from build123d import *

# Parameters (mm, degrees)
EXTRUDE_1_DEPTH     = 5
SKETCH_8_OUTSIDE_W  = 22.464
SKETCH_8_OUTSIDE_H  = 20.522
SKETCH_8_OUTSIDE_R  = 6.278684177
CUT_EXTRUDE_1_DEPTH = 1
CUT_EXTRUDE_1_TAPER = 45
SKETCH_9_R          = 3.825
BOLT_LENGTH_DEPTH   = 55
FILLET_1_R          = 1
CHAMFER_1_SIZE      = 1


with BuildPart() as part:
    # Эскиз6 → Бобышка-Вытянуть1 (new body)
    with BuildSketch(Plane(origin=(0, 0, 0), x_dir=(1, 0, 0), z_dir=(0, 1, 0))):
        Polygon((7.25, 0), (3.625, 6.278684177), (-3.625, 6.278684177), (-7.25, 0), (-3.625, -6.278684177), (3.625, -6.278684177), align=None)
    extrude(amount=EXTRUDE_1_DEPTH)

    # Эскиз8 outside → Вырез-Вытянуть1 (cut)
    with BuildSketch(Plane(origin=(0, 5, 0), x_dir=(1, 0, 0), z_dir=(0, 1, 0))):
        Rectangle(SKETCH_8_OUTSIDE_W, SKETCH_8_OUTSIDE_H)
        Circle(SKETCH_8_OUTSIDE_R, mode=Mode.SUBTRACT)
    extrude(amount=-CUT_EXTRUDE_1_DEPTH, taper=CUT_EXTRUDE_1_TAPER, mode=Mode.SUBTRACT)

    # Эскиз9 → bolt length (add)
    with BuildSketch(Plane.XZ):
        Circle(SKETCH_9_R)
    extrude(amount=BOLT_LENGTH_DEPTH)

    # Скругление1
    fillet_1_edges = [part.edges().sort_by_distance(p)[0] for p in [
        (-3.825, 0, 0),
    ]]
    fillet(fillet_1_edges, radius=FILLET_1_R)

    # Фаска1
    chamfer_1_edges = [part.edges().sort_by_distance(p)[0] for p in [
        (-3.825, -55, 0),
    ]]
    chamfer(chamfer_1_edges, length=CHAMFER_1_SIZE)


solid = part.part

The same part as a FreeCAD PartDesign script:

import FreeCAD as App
import Part
import Sketcher
from FreeCAD import Vector
Q = App.Units.Quantity


def edges_at(feature, points):
    """Names of the edges that pass closest to the given points."""
    edges = feature.Shape.Edges
    near = lambda p: min(range(len(edges)), key=lambda i: edges[i].distToShape(Part.Vertex(*p))[0])
    return sorted({f"Edge{near(p) + 1}" for p in points})


def add_polygon(sketch, points):
    """Adds a closed chain of lines whose ends are joined by coincident constraints."""
    first, n = sketch.GeometryCount, len(points)
    for a, b in zip(points, points[1:] + points[:1]):
        sketch.addGeometry(Part.LineSegment(App.Vector(*a, 0), App.Vector(*b, 0)), False)
    for i in range(n):
        sketch.addConstraint(Sketcher.Constraint("Coincident", first + i, 2, first + (i + 1) % n, 1))

doc = App.newDocument("Part")
params = doc.addObject("Spreadsheet::Sheet", "Params")
for row, (alias, value) in enumerate([
    ("sketch1_width", "7.25 mm"),
    ("pad1_length", "5 mm"),
    ("pocket1_length", "1 mm"),
    ("pocket1_taper", "45 deg"),
    ("sketch3_diameter", "7.65 mm"),
    ("pad2_length", "55 mm"),
    ("fillet_radius", "1 mm"),
    ("chamfer_size", "1 mm"),
], start=1):
    params.set(f"A{row}", alias)
    params.set(f"B{row}", "=" + value)
    params.setAlias(f"B{row}", alias)

body = doc.addObject("PartDesign::Body", "Body")

sketch1 = doc.addObject("Sketcher::SketchObject", "Sketch")
body.addObject(sketch1)
sketch1.AttachmentSupport = (doc.XZ_Plane, [""])
sketch1.MapMode = "FlatFace"
add_polygon(sketch1, [(7, 0), (4, -6), (-4, -6), (-7, 0), (-4, 6), (4, 6)])
sketch1.addConstraint(Sketcher.Constraint("Horizontal", 1))
sketch1.addConstraint(Sketcher.Constraint("Horizontal", 4))
sketch1.addConstraint(Sketcher.Constraint("Symmetric", 0, 2, 3, 2, -1, 1))
sketch1.addConstraint(Sketcher.Constraint("Symmetric", 2, 2, 5, 2, -1, 1))
sketch1.addConstraint(Sketcher.Constraint("PointOnObject", 2, 2, -1))
sketch1.addConstraint(Sketcher.Constraint("Parallel", 2, 5))
sketch1.addConstraint(Sketcher.Constraint("Vertical", 1, 2, 3, 2))
sketch1.addConstraint(Sketcher.Constraint("Angle", 0, Q("-120 deg")))
sketch1.addConstraint(Sketcher.Constraint("DistanceX", 1, 2, 1, 1, 7.25))
sketch1.addConstraint(Sketcher.Constraint("DistanceX", 2, 2, 5, 2, 14.5))
sketch1.setExpression("Constraints[14]", "Params.sketch1_width")
pad1 = doc.addObject("PartDesign::Pad", "Pad")
body.addObject(pad1)
pad1.Profile = sketch1
pad1.setExpression("Length", "Params.pad1_length")
pad1.Reversed = True

sketch2 = doc.addObject("Sketcher::SketchObject", "Sketch001")
body.addObject(sketch2)
sketch2.AttachmentSupport = (doc.XZ_Plane, [""])
sketch2.MapMode = "FlatFace"
sketch2.AttachmentOffset = App.Placement(Vector(0, 0, -5), App.Rotation())
add_polygon(sketch2, [(-11, -10), (-11, 10), (11, 10), (11, -10)])
sketch2.addGeometry(Part.Circle(Vector(0, 0, 0), Vector(0, 0, 1), 6), False)
sketch2.addConstraint(Sketcher.Constraint("Vertical", 0))
sketch2.addConstraint(Sketcher.Constraint("Horizontal", 1))
sketch2.addConstraint(Sketcher.Constraint("Vertical", 2))
sketch2.addConstraint(Sketcher.Constraint("Horizontal", 3))
sketch2.addConstraint(Sketcher.Constraint("Coincident", 4, 3, -1, 1))
sketch2.addConstraint(Sketcher.Constraint("Symmetric", 0, 2, 2, 2, -1, 1))
sketch2.addConstraint(Sketcher.Constraint("Diameter", 4, 12.557368))
sketch2.addConstraint(Sketcher.Constraint("DistanceX", 1, 1, 1, 2, 22.464))
sketch2.addConstraint(Sketcher.Constraint("DistanceY", 0, 1, 0, 2, 20.522))
pocket1 = doc.addObject("PartDesign::Pocket", "Pocket")
body.addObject(pocket1)
pocket1.Profile = sketch2
pocket1.setExpression("Length", "Params.pocket1_length")
pocket1.Reversed = True
pocket1.setExpression("TaperAngle", "Params.pocket1_taper")

sketch3 = doc.addObject("Sketcher::SketchObject", "Sketch002")
body.addObject(sketch3)
sketch3.AttachmentSupport = (doc.XZ_Plane, [""])
sketch3.MapMode = "FlatFace"
sketch3.addGeometry(Part.Circle(Vector(0, 0, 0), Vector(0, 0, 1), 3.8), False)
sketch3.addConstraint(Sketcher.Constraint("Coincident", 0, 3, -1, 1))
sketch3.addConstraint(Sketcher.Constraint("Diameter", 0, 7.65))
sketch3.setExpression("Constraints[1]", "Params.sketch3_diameter")
pad2 = doc.addObject("PartDesign::Pad", "Pad001")
body.addObject(pad2)
pad2.Profile = sketch3
pad2.setExpression("Length", "Params.pad2_length")
doc.recompute()

fillet = doc.addObject("PartDesign::Fillet", "Fillet")
body.addObject(fillet)
fillet.Base = (pad2, edges_at(pad2, [(-3.825, 0, 0)]))
fillet.setExpression("Radius", "Params.fillet_radius")
doc.recompute()

chamfer = doc.addObject("PartDesign::Chamfer", "Chamfer")
body.addObject(chamfer)
chamfer.Base = (fillet, edges_at(fillet, [(-3.825, -55, 0)]))
chamfer.setExpression("Size", "Params.chamfer_size")

doc.recompute()
